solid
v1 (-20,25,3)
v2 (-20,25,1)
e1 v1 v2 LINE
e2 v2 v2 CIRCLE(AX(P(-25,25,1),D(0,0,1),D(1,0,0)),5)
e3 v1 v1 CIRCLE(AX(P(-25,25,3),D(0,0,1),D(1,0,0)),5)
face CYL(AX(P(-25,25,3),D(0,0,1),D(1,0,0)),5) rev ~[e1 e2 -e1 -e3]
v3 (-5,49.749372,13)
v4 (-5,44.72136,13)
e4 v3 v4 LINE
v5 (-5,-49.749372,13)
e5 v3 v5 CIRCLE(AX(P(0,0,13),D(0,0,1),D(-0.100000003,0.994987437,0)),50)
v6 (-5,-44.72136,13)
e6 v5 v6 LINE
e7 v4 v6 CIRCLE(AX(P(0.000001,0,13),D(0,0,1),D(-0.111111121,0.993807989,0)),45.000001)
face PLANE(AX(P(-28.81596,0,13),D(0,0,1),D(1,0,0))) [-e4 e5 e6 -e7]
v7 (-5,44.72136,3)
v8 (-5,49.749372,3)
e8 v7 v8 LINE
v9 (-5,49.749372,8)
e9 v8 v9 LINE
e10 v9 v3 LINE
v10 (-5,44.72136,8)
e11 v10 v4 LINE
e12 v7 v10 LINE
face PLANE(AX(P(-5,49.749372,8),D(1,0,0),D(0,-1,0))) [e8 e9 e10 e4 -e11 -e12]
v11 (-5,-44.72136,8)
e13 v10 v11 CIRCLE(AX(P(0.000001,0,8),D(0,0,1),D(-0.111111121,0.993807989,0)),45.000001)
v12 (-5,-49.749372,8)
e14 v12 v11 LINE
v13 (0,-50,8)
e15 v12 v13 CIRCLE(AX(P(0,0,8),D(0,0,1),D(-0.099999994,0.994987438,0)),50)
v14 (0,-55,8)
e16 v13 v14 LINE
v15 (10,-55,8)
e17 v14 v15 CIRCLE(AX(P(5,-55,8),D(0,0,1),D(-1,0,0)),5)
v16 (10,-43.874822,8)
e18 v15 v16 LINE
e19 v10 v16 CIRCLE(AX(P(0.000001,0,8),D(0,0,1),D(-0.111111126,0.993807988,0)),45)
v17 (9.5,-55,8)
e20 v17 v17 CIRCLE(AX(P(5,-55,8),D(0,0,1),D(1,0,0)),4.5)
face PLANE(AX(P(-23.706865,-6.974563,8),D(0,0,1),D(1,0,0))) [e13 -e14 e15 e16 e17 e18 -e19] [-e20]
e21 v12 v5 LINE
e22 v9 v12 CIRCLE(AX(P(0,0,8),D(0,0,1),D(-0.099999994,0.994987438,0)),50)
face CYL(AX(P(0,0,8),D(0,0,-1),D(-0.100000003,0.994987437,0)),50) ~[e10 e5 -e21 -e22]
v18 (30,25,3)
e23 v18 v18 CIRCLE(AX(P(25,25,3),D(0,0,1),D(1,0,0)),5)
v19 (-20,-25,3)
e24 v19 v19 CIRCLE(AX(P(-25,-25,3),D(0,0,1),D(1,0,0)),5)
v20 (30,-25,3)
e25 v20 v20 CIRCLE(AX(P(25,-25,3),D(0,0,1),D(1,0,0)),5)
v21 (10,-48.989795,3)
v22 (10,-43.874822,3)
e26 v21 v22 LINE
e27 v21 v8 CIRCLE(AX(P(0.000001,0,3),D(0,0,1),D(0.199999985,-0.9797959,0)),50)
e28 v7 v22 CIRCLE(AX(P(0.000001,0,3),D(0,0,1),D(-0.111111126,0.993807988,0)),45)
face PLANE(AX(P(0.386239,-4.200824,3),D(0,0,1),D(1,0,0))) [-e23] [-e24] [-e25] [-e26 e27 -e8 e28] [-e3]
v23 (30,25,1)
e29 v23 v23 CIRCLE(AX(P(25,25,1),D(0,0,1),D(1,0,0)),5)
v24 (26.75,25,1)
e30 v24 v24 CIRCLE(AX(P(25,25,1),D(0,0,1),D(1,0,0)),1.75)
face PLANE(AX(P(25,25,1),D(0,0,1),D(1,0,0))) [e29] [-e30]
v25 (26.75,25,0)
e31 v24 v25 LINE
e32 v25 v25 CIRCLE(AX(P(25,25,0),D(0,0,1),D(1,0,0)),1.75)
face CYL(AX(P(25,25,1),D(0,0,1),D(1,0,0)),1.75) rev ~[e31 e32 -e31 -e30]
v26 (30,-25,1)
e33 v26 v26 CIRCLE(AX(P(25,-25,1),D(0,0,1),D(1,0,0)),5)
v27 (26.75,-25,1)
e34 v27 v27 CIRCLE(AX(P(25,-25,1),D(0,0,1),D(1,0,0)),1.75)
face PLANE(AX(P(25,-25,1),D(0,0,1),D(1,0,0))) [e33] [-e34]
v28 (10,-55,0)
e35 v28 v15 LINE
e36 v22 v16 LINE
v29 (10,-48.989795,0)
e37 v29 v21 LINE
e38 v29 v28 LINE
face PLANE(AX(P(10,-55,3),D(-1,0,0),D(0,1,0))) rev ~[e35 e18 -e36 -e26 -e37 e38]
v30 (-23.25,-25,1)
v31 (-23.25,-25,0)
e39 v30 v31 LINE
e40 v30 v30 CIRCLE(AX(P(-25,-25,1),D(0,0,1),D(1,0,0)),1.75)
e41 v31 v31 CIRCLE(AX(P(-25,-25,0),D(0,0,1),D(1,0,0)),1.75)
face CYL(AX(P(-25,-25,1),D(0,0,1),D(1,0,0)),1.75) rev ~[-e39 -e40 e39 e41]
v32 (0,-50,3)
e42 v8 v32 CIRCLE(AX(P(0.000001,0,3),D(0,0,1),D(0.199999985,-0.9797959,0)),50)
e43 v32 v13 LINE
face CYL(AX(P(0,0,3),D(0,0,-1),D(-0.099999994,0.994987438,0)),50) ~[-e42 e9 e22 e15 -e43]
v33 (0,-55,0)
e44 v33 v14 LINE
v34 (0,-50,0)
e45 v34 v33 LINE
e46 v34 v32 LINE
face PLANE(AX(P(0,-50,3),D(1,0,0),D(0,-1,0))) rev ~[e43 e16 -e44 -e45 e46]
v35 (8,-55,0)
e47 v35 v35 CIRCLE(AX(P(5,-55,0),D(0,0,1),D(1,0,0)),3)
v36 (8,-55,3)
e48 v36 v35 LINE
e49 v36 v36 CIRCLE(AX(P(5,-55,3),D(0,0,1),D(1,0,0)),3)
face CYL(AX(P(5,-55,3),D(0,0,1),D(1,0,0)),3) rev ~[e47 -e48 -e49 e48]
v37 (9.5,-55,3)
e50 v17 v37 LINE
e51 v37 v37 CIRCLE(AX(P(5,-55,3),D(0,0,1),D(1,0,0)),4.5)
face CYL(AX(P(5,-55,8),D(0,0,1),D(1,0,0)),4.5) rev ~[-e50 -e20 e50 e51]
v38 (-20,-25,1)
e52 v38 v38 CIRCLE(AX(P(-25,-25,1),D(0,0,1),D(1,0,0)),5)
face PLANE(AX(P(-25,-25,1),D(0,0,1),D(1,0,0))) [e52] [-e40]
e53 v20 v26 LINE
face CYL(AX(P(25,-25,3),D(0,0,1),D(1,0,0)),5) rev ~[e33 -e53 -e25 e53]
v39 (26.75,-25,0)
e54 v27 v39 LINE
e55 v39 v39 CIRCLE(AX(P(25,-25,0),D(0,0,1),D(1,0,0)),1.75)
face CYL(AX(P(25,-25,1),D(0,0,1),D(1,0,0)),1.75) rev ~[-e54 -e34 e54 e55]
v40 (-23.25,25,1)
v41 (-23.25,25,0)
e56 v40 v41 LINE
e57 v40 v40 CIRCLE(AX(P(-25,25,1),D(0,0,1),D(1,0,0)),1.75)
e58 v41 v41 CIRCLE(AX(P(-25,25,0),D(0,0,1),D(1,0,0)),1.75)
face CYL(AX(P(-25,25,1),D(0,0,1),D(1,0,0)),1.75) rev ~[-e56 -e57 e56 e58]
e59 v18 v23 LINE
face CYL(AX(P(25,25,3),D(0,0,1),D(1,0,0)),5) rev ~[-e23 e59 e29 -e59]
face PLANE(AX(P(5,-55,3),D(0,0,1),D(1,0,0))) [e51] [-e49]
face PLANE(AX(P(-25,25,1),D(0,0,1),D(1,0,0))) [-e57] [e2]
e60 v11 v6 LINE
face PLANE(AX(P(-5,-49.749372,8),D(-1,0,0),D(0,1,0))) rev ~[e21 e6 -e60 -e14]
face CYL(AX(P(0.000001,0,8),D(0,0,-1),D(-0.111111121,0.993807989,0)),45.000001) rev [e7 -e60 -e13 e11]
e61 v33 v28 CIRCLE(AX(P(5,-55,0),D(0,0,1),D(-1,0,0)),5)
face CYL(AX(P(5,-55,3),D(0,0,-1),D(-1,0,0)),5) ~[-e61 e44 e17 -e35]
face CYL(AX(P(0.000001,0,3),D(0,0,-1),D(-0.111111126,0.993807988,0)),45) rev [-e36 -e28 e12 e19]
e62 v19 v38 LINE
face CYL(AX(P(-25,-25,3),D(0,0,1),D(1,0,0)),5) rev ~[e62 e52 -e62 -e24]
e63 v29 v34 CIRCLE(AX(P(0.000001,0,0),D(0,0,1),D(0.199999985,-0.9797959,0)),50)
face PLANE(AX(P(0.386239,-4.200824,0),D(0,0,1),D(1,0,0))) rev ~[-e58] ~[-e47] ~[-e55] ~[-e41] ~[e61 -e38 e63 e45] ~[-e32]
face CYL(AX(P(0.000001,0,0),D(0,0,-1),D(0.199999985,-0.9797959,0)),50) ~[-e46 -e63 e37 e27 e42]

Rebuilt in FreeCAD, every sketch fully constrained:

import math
import FreeCAD as App
import Part
import Sketcher

V = App.Vector

doc = App.newDocument("Part")
body = doc.addObject("PartDesign::Body", "Body")

# Sketch on XY plane
sketch1 = body.newObject("Sketcher::SketchObject", "Sketch")
sketch1.AttachmentSupport = (doc.getObject("XY_Plane"), [""])
sketch1.MapMode = "FlatFace"
sketch1.addGeometry([
    Part.LineSegment(V(0, -50, 0), V(0, -55, 0)),
    Part.ArcOfCircle(Part.Circle(V(5, -55, 0), V(0, 0, 1), 5), math.radians(180), math.radians(360)),
    Part.LineSegment(V(10, -55, 0), V(10, -49, 0)),
    Part.ArcOfCircle(Part.Circle(V(0, 0, 0), V(0, 0, 1), 50), math.radians(-78), math.radians(270)),
], False)
sketch1.addConstraint([
    Sketcher.Constraint("Tangent", 0, 2, 1, 1),
    Sketcher.Constraint("Tangent", 1, 2, 2, 1),
    Sketcher.Constraint("Coincident", 2, 2, 3, 1),
    Sketcher.Constraint("Coincident", 3, 2, 0, 1),
    Sketcher.Constraint("Vertical", 0),
    Sketcher.Constraint("Vertical", 2),
    Sketcher.Constraint("Coincident", 3, 3, -1, 1),
    Sketcher.Constraint("PointOnObject", 0, 2, -2),
    Sketcher.Constraint("Radius", 1, 5.0),
    Sketcher.Constraint("Radius", 3, 50.0),
    Sketcher.Constraint("DistanceY", 0, 2, 0, 1, 5.0),
])
pad1 = body.newObject("PartDesign::Pad", "Pad")
pad1.Profile = sketch1
pad1.Length = 3

# Sketch on XY plane
sketch2 = body.newObject("Sketcher::SketchObject", "Sketch001")
sketch2.AttachmentSupport = (doc.getObject("XY_Plane"), [""])
sketch2.MapMode = "FlatFace"
sketch2.AttachmentOffset = App.Placement(V(0, 0, 3), App.Rotation())
sketch2.addGeometry([
    Part.LineSegment(V(0, -50, 0), V(0, -55, 0)),  # 0
    Part.ArcOfCircle(Part.Circle(V(5, -55, 0), V(0, 0, 1), 5), math.radians(180), math.radians(360)),  # 1
    Part.LineSegment(V(10, -55, 0), V(10, -44, 0)),  # 2
    Part.ArcOfCircle(Part.Circle(V(0, 0, 0), V(0, 0, 1), 45), math.radians(96), math.radians(283)),  # 3
    Part.LineSegment(V(-5, 45, 0), V(-5, 50, 0)),  # 4
    Part.ArcOfCircle(Part.Circle(V(0, 0, 0), V(0, 0, 1), 50), math.radians(96), math.radians(270)),  # 5
], False)
sketch2.addConstraint([
    Sketcher.Constraint("Tangent", 0, 2, 1, 1),
    Sketcher.Constraint("Tangent", 1, 2, 2, 1),
    Sketcher.Constraint("Coincident", 2, 2, 3, 2),
    Sketcher.Constraint("Coincident", 3, 1, 4, 1),
    Sketcher.Constraint("Coincident", 4, 2, 5, 1),
    Sketcher.Constraint("Coincident", 5, 2, 0, 1),
    Sketcher.Constraint("Vertical", 0),
    Sketcher.Constraint("Vertical", 2),
    Sketcher.Constraint("Vertical", 4),
    Sketcher.Constraint("Coincident", 3, 3, -1, 1),
    Sketcher.Constraint("Coincident", 5, 3, -1, 1),
    Sketcher.Constraint("PointOnObject", 0, 2, -2),
    Sketcher.Constraint("Radius", 1, 5.0),
    Sketcher.Constraint("Radius", 3, 45.0),
    Sketcher.Constraint("Radius", 5, 50.0),
    Sketcher.Constraint("DistanceY", 0, 2, 0, 1, 5.0),
    Sketcher.Constraint("DistanceX", 3, 1, -1, 1, 5.0),
])
pad2 = body.newObject("PartDesign::Pad", "Pad001")
pad2.Profile = sketch2
pad2.Length = 5

# Sketch on XY plane
sketch3 = body.newObject("Sketcher::SketchObject", "Sketch002")
sketch3.AttachmentSupport = (doc.getObject("XY_Plane"), [""])
sketch3.MapMode = "FlatFace"
sketch3.AttachmentOffset = App.Placement(V(0, 0, 8), App.Rotation())
sketch3.addGeometry(Part.Circle(V(5, -55, 0), V(0, 0, 1), 4.5), False)
sketch3.addConstraint([
    Sketcher.Constraint("Diameter", 0, 9.0),
    Sketcher.Constraint("DistanceX", -1, 1, 0, 3, 5.0),
    Sketcher.Constraint("DistanceY", 0, 3, -1, 1, 55.0),
])
pocket1 = body.newObject("PartDesign::Pocket", "Pocket")
pocket1.Profile = sketch3
pocket1.Length = 5

# Sketch on XY plane
sketch4 = body.newObject("Sketcher::SketchObject", "Sketch003")
sketch4.AttachmentSupport = (doc.getObject("XY_Plane"), [""])
sketch4.MapMode = "FlatFace"
sketch4.AttachmentOffset = App.Placement(V(0, 0, 3), App.Rotation())
sketch4.addGeometry(Part.Circle(V(5, -55, 0), V(0, 0, 1), 3), False)
sketch4.addConstraint([
    Sketcher.Constraint("Diameter", 0, 6.0),
    Sketcher.Constraint("DistanceX", -1, 1, 0, 3, 5.0),
    Sketcher.Constraint("DistanceY", 0, 3, -1, 1, 55.0),
])
pocket2 = body.newObject("PartDesign::Pocket", "Pocket001")
pocket2.Profile = sketch4
pocket2.Length = 3

# Sketch on XY plane
sketch5 = body.newObject("Sketcher::SketchObject", "Sketch004")
sketch5.AttachmentSupport = (doc.getObject("XY_Plane"), [""])
sketch5.MapMode = "FlatFace"
sketch5.AttachmentOffset = App.Placement(V(0, 0, 8), App.Rotation())
sketch5.addGeometry([
    Part.LineSegment(V(-5, -50, 0), V(-5, -45, 0)),
    Part.ArcOfCircle(Part.Circle(V(0, 0, 0), V(0, 0, 1), 45), math.radians(96), math.radians(264)),
    Part.LineSegment(V(-5, 45, 0), V(-5, 50, 0)),
    Part.ArcOfCircle(Part.Circle(V(0, 0, 0), V(0, 0, 1), 50), math.radians(96), math.radians(264)),
], False)
sketch5.addConstraint([
    Sketcher.Constraint("Coincident", 0, 2, 1, 2),
    Sketcher.Constraint("Coincident", 1, 1, 2, 1),
    Sketcher.Constraint("Coincident", 2, 2, 3, 1),
    Sketcher.Constraint("Coincident", 3, 2, 0, 1),
    Sketcher.Constraint("Vertical", 0),
    Sketcher.Constraint("Vertical", 2),
    Sketcher.Constraint("Coincident", 1, 3, -1, 1),
    Sketcher.Constraint("Coincident", 3, 3, -1, 1),
    Sketcher.Constraint("Vertical", 0, 2, 1, 1),
    Sketcher.Constraint("Radius", 1, 45.000001),
    Sketcher.Constraint("Radius", 3, 50.0),
    Sketcher.Constraint("DistanceX", 0, 2, -1, 1, 5.0),
])
pad3 = body.newObject("PartDesign::Pad", "Pad002")
pad3.Profile = sketch5
pad3.Length = 5

# Sketch on XY plane
sketch6 = body.newObject("Sketcher::SketchObject", "Sketch005")
sketch6.AttachmentSupport = (doc.getObject("XY_Plane"), [""])
sketch6.MapMode = "FlatFace"
sketch6.AttachmentOffset = App.Placement(V(0, 0, 3), App.Rotation())
sketch6.addGeometry([
    Part.Circle(V(-25, 25, 0), V(0, 0, 1), 5),
    Part.Circle(V(25, -25, 0), V(0, 0, 1), 5),
    Part.Circle(V(25, 25, 0), V(0, 0, 1), 5),
    Part.Circle(V(-25, -25, 0), V(0, 0, 1), 5),
], False)
sketch6.addConstraint([
    Sketcher.Constraint("Equal", 0, 1),
    Sketcher.Constraint("Equal", 1, 2),
    Sketcher.Constraint("Equal", 2, 3),
    Sketcher.Constraint("Symmetric", 0, 3, 1, 3, -1, 1),
    Sketcher.Constraint("Symmetric", 2, 3, 3, 3, -1, 1),
    Sketcher.Constraint("Symmetric", 0, 3, 2, 3, -2),
    Sketcher.Constraint("Diameter", 0, 10.0),
    Sketcher.Constraint("DistanceX", 0, 3, -1, 1, 25.0),
    Sketcher.Constraint("DistanceY", -1, 1, 0, 3, 25.0),
])
pocket3 = body.newObject("PartDesign::Pocket", "Pocket002")
pocket3.Profile = sketch6
pocket3.Length = 2

# Sketch on XY plane
sketch7 = body.newObject("Sketcher::SketchObject", "Sketch006")
sketch7.AttachmentSupport = (doc.getObject("XY_Plane"), [""])
sketch7.MapMode = "FlatFace"
sketch7.AttachmentOffset = App.Placement(V(0, 0, 1), App.Rotation())
sketch7.addGeometry([
    Part.Circle(V(-25, 25, 0), V(0, 0, 1), 1.8),
    Part.Circle(V(25, -25, 0), V(0, 0, 1), 1.8),
    Part.Circle(V(25, 25, 0), V(0, 0, 1), 1.8),
    Part.Circle(V(-25, -25, 0), V(0, 0, 1), 1.8),
], False)
sketch7.addConstraint([
    Sketcher.Constraint("Equal", 0, 1),
    Sketcher.Constraint("Equal", 1, 2),
    Sketcher.Constraint("Equal", 2, 3),
    Sketcher.Constraint("Symmetric", 0, 3, 1, 3, -1, 1),
    Sketcher.Constraint("Symmetric", 2, 3, 3, 3, -1, 1),
    Sketcher.Constraint("Symmetric", 0, 3, 2, 3, -2),
    Sketcher.Constraint("Diameter", 0, 3.5),
    Sketcher.Constraint("DistanceX", 0, 3, -1, 1, 25.0),
    Sketcher.Constraint("DistanceY", -1, 1, 0, 3, 25.0),
])
pocket4 = body.newObject("PartDesign::Pocket", "Pocket003")
pocket4.Profile = sketch7
pocket4.Length = 1

doc.recompute()
